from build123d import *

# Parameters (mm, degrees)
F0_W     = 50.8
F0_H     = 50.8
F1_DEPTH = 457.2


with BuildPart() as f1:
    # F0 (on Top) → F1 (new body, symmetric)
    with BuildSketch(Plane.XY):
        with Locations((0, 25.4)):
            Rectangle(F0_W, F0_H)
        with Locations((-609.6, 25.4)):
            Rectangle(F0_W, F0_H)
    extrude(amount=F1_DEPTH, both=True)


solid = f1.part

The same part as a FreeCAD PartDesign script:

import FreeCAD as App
import Part
import Sketcher
Q = App.Units.Quantity


def add_polygon(sketch, points):
    """Adds a closed chain of lines whose ends are joined by coincident constraints."""
    first, n = sketch.GeometryCount, len(points)
    for a, b in zip(points, points[1:] + points[:1]):
        sketch.addGeometry(Part.LineSegment(App.Vector(*a, 0), App.Vector(*b, 0)), False)
    for i in range(n):
        sketch.addConstraint(Sketcher.Constraint("Coincident", first + i, 2, first + (i + 1) % n, 1))

doc = App.newDocument("Part")
body = doc.addObject("PartDesign::Body", "Body")
body.AllowCompound = True

# Sketch on XY plane
sketch1 = body.newObject("Sketcher::SketchObject", "Sketch")
sketch1.AttachmentSupport = (doc.getObject("XY_Plane"), [""])
sketch1.MapMode = "FlatFace"
add_polygon(sketch1, [(-25, 51), (-25, 0), (25, 0), (25, 51)])  # lines 0-3
add_polygon(sketch1, [(-635, 51), (-635, 0), (-584, 0), (-584, 51)])  # lines 4-7
sketch1.addConstraint(Sketcher.Constraint("Vertical", 0))
sketch1.addConstraint(Sketcher.Constraint("Horizontal", 1))
sketch1.addConstraint(Sketcher.Constraint("Vertical", 2))
sketch1.addConstraint(Sketcher.Constraint("Horizontal", 3))
sketch1.addConstraint(Sketcher.Constraint("Vertical", 4))
sketch1.addConstraint(Sketcher.Constraint("Horizontal", 5))
sketch1.addConstraint(Sketcher.Constraint("Vertical", 6))
sketch1.addConstraint(Sketcher.Constraint("Horizontal", 7))
sketch1.addConstraint(Sketcher.Constraint("Symmetric", 0, 2, 1, 2, -1, 1))
sketch1.addConstraint(Sketcher.Constraint("PointOnObject", 4, 2, -1))
sketch1.addConstraint(Sketcher.Constraint("Horizontal", 3, 2, 6, 2))
sketch1.addConstraint(Sketcher.Constraint("Equal", 3, 5))
sketch1.addConstraint(Sketcher.Constraint("Equal", 7, 0))
sketch1.addConstraint(Sketcher.Constraint("DistanceX", 1, 1, 1, 2, Q("2 in")))
sketch1.addConstraint(Sketcher.Constraint("DistanceX", 4, 2, -1, 1, Q("25 in")))
pad1 = body.newObject("PartDesign::Pad", "Pad")
pad1.Profile = sketch1
pad1.Length = Q("36 in")
pad1.Midplane = True

doc.recompute()
